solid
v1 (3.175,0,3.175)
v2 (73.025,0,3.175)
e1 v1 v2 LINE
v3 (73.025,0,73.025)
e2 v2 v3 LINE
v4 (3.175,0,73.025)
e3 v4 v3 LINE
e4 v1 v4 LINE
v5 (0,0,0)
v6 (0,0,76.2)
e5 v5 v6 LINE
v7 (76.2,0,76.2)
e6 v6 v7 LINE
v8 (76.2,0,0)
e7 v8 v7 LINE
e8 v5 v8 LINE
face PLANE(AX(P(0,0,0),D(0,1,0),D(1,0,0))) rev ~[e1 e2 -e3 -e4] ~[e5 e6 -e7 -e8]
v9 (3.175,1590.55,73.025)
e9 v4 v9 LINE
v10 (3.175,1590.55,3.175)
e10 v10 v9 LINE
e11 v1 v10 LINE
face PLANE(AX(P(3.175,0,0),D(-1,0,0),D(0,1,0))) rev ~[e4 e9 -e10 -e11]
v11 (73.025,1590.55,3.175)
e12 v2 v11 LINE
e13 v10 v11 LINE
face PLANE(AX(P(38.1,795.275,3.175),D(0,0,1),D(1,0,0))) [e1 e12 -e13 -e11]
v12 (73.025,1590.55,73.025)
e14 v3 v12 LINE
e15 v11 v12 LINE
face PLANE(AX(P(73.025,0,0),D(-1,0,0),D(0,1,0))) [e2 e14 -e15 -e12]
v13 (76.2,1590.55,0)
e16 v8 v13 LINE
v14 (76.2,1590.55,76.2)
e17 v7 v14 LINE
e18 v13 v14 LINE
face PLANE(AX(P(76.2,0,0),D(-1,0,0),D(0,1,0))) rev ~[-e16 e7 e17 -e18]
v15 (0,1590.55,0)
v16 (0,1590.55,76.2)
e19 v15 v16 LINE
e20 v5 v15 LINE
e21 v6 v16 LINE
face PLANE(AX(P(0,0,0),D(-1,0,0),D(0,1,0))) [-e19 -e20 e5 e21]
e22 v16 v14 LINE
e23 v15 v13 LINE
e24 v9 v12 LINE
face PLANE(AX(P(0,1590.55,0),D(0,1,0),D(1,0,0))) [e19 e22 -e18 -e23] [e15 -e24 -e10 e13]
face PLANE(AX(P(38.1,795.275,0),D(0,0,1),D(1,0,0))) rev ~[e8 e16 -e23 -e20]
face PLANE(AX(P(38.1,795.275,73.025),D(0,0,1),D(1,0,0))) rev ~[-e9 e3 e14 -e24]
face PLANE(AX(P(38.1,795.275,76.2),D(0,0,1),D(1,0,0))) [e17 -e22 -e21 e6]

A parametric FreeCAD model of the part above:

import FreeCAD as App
import Part
import Sketcher

V = App.Vector
Q = App.Units.Quantity


def faces_at(feature, points):
    """Names of the faces that lie closest to the given points."""
    faces = feature.Shape.Faces
    near = lambda p: min(range(len(faces)), key=lambda i: faces[i].distToShape(Part.Vertex(*p))[0])
    return sorted({f"Face{near(p) + 1}" for p in points})

doc = App.newDocument("Part")
body = doc.addObject("PartDesign::Body", "Body")

sketch1 = body.newObject("Sketcher::SketchObject", "Sketch")
sketch1.AttachmentSupport = (doc.getObject("XY_Plane"), [""])
sketch1.MapMode = "FlatFace"
sketch1.addGeometry(Part.LineSegment(V(0, 1591, 0), V(0, 0, 0)), False)
sketch1.addGeometry(Part.LineSegment(V(0, 0, 0), V(76, 0, 0)), False)
sketch1.addGeometry(Part.LineSegment(V(76, 0, 0), V(76, 1591, 0)), False)
sketch1.addGeometry(Part.LineSegment(V(76, 1591, 0), V(0, 1591, 0)), False)
sketch1.addConstraint(Sketcher.Constraint("Coincident", 0, 2, 1, 1))
sketch1.addConstraint(Sketcher.Constraint("Coincident", 1, 2, 2, 1))
sketch1.addConstraint(Sketcher.Constraint("Coincident", 2, 2, 3, 1))
sketch1.addConstraint(Sketcher.Constraint("Coincident", 3, 2, 0, 1))
sketch1.addConstraint(Sketcher.Constraint("Vertical", 0))
sketch1.addConstraint(Sketcher.Constraint("Horizontal", 1))
sketch1.addConstraint(Sketcher.Constraint("Vertical", 2))
sketch1.addConstraint(Sketcher.Constraint("Horizontal", 3))
sketch1.addConstraint(Sketcher.Constraint("Coincident", 0, 2, -1, 1))
sketch1.addConstraint(Sketcher.Constraint("DistanceX", 1, 1, 1, 2, Q("3 in")))
sketch1.addConstraint(Sketcher.Constraint("DistanceY", 0, 2, 0, 1, Q("1590.55 mm")))
pad1 = body.newObject("PartDesign::Pad", "Pad")
pad1.Profile = sketch1
pad1.Length = Q("3 in")
doc.recompute()

thickness = body.newObject("PartDesign::Thickness", "Thickness")
thickness.Base = (pad1, faces_at(pad1, [(38.1, 0, 38.1), (38.1, 1590.55, 38.1)]))
thickness.Value = Q("0.125 in")
thickness.Reversed = True
thickness.Join = "Arc"

doc.recompute()
